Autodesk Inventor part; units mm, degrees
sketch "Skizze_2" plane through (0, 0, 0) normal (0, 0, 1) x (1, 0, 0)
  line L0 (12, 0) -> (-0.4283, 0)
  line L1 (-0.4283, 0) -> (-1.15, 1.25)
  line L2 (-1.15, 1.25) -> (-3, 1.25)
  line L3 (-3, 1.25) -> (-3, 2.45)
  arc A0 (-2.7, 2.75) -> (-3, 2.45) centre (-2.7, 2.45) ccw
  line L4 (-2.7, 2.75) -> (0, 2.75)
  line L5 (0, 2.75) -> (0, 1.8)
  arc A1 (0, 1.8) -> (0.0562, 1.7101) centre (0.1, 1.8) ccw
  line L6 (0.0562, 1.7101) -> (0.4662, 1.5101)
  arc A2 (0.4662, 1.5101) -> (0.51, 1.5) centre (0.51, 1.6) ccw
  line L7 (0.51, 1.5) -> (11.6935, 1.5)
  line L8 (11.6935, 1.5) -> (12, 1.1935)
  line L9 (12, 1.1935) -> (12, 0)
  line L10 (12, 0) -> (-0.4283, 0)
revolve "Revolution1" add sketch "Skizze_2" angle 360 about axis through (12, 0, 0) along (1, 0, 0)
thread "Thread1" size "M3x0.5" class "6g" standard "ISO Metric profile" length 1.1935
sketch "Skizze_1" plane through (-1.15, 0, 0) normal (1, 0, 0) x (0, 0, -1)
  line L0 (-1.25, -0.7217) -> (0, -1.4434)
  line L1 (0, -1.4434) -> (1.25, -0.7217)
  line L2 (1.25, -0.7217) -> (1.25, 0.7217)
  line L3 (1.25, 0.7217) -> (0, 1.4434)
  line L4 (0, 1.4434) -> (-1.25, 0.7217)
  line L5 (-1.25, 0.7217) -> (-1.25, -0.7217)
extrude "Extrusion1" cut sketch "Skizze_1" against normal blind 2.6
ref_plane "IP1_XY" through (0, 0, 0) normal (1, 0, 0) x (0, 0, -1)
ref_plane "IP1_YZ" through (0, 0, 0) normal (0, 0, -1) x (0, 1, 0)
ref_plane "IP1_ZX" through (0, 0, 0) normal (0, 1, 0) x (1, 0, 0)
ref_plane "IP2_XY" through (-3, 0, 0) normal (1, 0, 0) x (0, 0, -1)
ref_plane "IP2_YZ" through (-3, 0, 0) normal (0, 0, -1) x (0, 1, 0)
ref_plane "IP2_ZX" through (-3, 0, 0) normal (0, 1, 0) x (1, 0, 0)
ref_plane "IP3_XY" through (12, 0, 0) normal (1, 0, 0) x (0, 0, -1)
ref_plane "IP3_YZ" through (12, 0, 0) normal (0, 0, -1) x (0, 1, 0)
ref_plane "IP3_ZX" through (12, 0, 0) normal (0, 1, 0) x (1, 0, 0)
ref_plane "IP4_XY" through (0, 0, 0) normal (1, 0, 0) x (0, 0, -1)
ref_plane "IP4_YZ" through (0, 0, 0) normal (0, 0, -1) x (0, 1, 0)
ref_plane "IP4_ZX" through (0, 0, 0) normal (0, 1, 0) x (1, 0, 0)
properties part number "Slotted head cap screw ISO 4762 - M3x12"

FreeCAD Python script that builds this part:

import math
import FreeCAD as App
import Part
import Sketcher
Q = App.Units.Quantity

doc = App.newDocument("Part")
body = doc.addObject("PartDesign::Body", "Body")

# Sketch on XY plane
sketch1 = body.newObject("Sketcher::SketchObject", "Sketch")
sketch1.AttachmentSupport = (doc.getObject("XY_Plane"), [""])
sketch1.MapMode = "FlatFace"
sketch1.addGeometry(Part.LineSegment(App.Vector(-0.4283, 0, 0), App.Vector(12, 0, 0)), False)
sketch1.addGeometry(Part.LineSegment(App.Vector(12, 0, 0), App.Vector(12, 1.1935, 0)), False)
sketch1.addGeometry(Part.LineSegment(App.Vector(12, 1.1935, 0), App.Vector(11.6935, 1.5, 0)), False)
sketch1.addGeometry(Part.LineSegment(App.Vector(11.6935, 1.5, 0), App.Vector(0.51, 1.5, 0)), False)
sketch1.addGeometry(Part.ArcOfCircle(Part.Circle(App.Vector(0.51, 1.6, 0), App.Vector(0, 0, 1), 0.100002), math.radians(-115.975715), math.radians(-90)), False)
sketch1.addGeometry(Part.LineSegment(App.Vector(0.4662, 1.5101, 0), App.Vector(0.0562, 1.7101, 0)), False)
sketch1.addGeometry(Part.ArcOfCircle(Part.Circle(App.Vector(0.1, 1.8, 0), App.Vector(0, 0, 1), 0.1), math.radians(180), math.radians(244.024285)), False)
sketch1.addGeometry(Part.LineSegment(App.Vector(0, 1.8, 0), App.Vector(0, 2.75, 0)), False)
sketch1.addGeometry(Part.LineSegment(App.Vector(0, 2.75, 0), App.Vector(-2.7, 2.75, 0)), False)
sketch1.addGeometry(Part.ArcOfCircle(Part.Circle(App.Vector(-2.7, 2.45, 0), App.Vector(0, 0, 1), 0.3), math.radians(90), math.radians(180)), False)
sketch1.addGeometry(Part.LineSegment(App.Vector(-3, 2.45, 0), App.Vector(-3, 1.25, 0)), False)
sketch1.addGeometry(Part.LineSegment(App.Vector(-3, 1.25, 0), App.Vector(-1.15, 1.25, 0)), False)
sketch1.addGeometry(Part.LineSegment(App.Vector(-1.15, 1.25, 0), App.Vector(-0.4283, 0, 0)), False)
sketch1.addConstraint(Sketcher.Constraint("Coincident", 0, 2, 1, 1))
sketch1.addConstraint(Sketcher.Constraint("Coincident", 1, 2, 2, 1))
sketch1.addConstraint(Sketcher.Constraint("Coincident", 2, 2, 3, 1))
sketch1.addConstraint(Sketcher.Constraint("Tangent", 3, 2, 4, 2))
sketch1.addConstraint(Sketcher.Constraint("Tangent", 4, 1, 5, 1))
sketch1.addConstraint(Sketcher.Constraint("Tangent", 5, 2, 6, 2))
sketch1.addConstraint(Sketcher.Constraint("Tangent", 6, 1, 7, 1))
sketch1.addConstraint(Sketcher.Constraint("Coincident", 7, 2, 8, 1))
sketch1.addConstraint(Sketcher.Constraint("Tangent", 8, 2, 9, 1))
sketch1.addConstraint(Sketcher.Constraint("Tangent", 9, 2, 10, 1))
sketch1.addConstraint(Sketcher.Constraint("Coincident", 10, 2, 11, 1))
sketch1.addConstraint(Sketcher.Constraint("Coincident", 11, 2, 12, 1))
sketch1.addConstraint(Sketcher.Constraint("Coincident", 12, 2, 0, 1))
sketch1.addConstraint(Sketcher.Constraint("Horizontal", 0))
sketch1.addConstraint(Sketcher.Constraint("Vertical", 1))
sketch1.addConstraint(Sketcher.Constraint("Horizontal", 3))
sketch1.addConstraint(Sketcher.Constraint("Vertical", 7))
sketch1.addConstraint(Sketcher.Constraint("Horizontal", 8))
sketch1.addConstraint(Sketcher.Constraint("Vertical", 10))
sketch1.addConstraint(Sketcher.Constraint("Horizontal", 11))
sketch1.addConstraint(Sketcher.Constraint("Equal", 4, 6))
sketch1.addConstraint(Sketcher.Constraint("PointOnObject", 0, 2, -1))
sketch1.addConstraint(Sketcher.Constraint("PointOnObject", 6, 1, -2))
sketch1.addConstraint(Sketcher.Constraint("Radius", 4, Q("0.1 mm")))
sketch1.addConstraint(Sketcher.Constraint("Radius", 9, Q("0.3 mm")))
sketch1.addConstraint(Sketcher.Constraint("Angle", 2, Q("135 deg")))
sketch1.addConstraint(Sketcher.Constraint("Angle", 12, Q("-59.9996 deg")))
sketch1.addConstraint(Sketcher.Constraint("DistanceX", 8, 2, 8, 1, Q("2.7 mm")))
sketch1.addConstraint(Sketcher.Constraint("DistanceY", 10, 2, 10, 1, Q("1.2 mm")))
sketch1.addConstraint(Sketcher.Constraint("DistanceX", -1, 1, 0, 2, Q("12 mm")))
sketch1.addConstraint(Sketcher.Constraint("DistanceX", 11, 1, 11, 2, Q("1.85 mm")))
sketch1.addConstraint(Sketcher.Constraint("DistanceY", 7, 1, 7, 2, Q("0.95 mm")))
sketch1.addConstraint(Sketcher.Constraint("DistanceY", -1, 1, 4, 3, Q("1.6 mm")))
sketch1.addConstraint(Sketcher.Constraint("DistanceY", -1, 1, 6, 3, Q("1.8 mm")))
sketch1.addConstraint(Sketcher.Constraint("DistanceX", -1, 1, 4, 3, Q("0.51 mm")))
sketch1.addConstraint(Sketcher.Constraint("DistanceX", 3, 2, 3, 1, Q("11.1835 mm")))
revolution = body.newObject("PartDesign::Revolution", "Revolution")
revolution.Profile = sketch1
revolution.ReferenceAxis = (sketch1, ["H_Axis"])
revolution.Angle = 360

# Sketch on YZ plane
sketch2 = body.newObject("Sketcher::SketchObject", "Sketch001")
sketch2.AttachmentSupport = (doc.getObject("YZ_Plane"), [""])
sketch2.MapMode = "FlatFace"
sketch2.AttachmentOffset = App.Placement(App.Vector(0, 0, -1.15), App.Rotation())
sketch2.addGeometry(Part.LineSegment(App.Vector(0.7217, 1.25, 0), App.Vector(-0.7217, 1.25, 0)), False)
sketch2.addGeometry(Part.LineSegment(App.Vector(-0.7217, 1.25, 0), App.Vector(-1.4434, 0, 0)), False)
sketch2.addGeometry(Part.LineSegment(App.Vector(-1.4434, 0, 0), App.Vector(-0.7217, -1.25, 0)), False)
sketch2.addGeometry(Part.LineSegment(App.Vector(-0.7217, -1.25, 0), App.Vector(0.7217, -1.25, 0)), False)
sketch2.addGeometry(Part.LineSegment(App.Vector(0.7217, -1.25, 0), App.Vector(1.4434, 0, 0)), False)
sketch2.addGeometry(Part.LineSegment(App.Vector(1.4434, 0, 0), App.Vector(0.7217, 1.25, 0)), False)
sketch2.addConstraint(Sketcher.Constraint("Coincident", 0, 2, 1, 1))
sketch2.addConstraint(Sketcher.Constraint("Coincident", 1, 2, 2, 1))
sketch2.addConstraint(Sketcher.Constraint("Coincident", 2, 2, 3, 1))
sketch2.addConstraint(Sketcher.Constraint("Coincident", 3, 2, 4, 1))
sketch2.addConstraint(Sketcher.Constraint("Coincident", 4, 2, 5, 1))
sketch2.addConstraint(Sketcher.Constraint("Coincident", 5, 2, 0, 1))
sketch2.addConstraint(Sketcher.Constraint("Horizontal", 0))
sketch2.addConstraint(Sketcher.Constraint("Horizontal", 3))
sketch2.addConstraint(Sketcher.Constraint("Symmetric", 0, 2, 3, 2, -1, 1))
sketch2.addConstraint(Sketcher.Constraint("Symmetric", 1, 2, 4, 2, -1, 1))
sketch2.addConstraint(Sketcher.Constraint("PointOnObject", 1, 2, -1))
sketch2.addConstraint(Sketcher.Constraint("Parallel", 2, 5))
sketch2.addConstraint(Sketcher.Constraint("Vertical", 0, 2, 2, 2))
sketch2.addConstraint(Sketcher.Constraint("Angle", 1, Q("-120.0004 deg")))
sketch2.addConstraint(Sketcher.Constraint("DistanceY", 2, 2, 0, 2, Q("2.5 mm")))
sketch2.addConstraint(Sketcher.Constraint("DistanceX", 0, 2, 0, 1, Q("1.4434 mm")))
pocket1 = body.newObject("PartDesign::Pocket", "Pocket")
pocket1.Profile = sketch2
pocket1.Length = 2.6

doc.recompute()
